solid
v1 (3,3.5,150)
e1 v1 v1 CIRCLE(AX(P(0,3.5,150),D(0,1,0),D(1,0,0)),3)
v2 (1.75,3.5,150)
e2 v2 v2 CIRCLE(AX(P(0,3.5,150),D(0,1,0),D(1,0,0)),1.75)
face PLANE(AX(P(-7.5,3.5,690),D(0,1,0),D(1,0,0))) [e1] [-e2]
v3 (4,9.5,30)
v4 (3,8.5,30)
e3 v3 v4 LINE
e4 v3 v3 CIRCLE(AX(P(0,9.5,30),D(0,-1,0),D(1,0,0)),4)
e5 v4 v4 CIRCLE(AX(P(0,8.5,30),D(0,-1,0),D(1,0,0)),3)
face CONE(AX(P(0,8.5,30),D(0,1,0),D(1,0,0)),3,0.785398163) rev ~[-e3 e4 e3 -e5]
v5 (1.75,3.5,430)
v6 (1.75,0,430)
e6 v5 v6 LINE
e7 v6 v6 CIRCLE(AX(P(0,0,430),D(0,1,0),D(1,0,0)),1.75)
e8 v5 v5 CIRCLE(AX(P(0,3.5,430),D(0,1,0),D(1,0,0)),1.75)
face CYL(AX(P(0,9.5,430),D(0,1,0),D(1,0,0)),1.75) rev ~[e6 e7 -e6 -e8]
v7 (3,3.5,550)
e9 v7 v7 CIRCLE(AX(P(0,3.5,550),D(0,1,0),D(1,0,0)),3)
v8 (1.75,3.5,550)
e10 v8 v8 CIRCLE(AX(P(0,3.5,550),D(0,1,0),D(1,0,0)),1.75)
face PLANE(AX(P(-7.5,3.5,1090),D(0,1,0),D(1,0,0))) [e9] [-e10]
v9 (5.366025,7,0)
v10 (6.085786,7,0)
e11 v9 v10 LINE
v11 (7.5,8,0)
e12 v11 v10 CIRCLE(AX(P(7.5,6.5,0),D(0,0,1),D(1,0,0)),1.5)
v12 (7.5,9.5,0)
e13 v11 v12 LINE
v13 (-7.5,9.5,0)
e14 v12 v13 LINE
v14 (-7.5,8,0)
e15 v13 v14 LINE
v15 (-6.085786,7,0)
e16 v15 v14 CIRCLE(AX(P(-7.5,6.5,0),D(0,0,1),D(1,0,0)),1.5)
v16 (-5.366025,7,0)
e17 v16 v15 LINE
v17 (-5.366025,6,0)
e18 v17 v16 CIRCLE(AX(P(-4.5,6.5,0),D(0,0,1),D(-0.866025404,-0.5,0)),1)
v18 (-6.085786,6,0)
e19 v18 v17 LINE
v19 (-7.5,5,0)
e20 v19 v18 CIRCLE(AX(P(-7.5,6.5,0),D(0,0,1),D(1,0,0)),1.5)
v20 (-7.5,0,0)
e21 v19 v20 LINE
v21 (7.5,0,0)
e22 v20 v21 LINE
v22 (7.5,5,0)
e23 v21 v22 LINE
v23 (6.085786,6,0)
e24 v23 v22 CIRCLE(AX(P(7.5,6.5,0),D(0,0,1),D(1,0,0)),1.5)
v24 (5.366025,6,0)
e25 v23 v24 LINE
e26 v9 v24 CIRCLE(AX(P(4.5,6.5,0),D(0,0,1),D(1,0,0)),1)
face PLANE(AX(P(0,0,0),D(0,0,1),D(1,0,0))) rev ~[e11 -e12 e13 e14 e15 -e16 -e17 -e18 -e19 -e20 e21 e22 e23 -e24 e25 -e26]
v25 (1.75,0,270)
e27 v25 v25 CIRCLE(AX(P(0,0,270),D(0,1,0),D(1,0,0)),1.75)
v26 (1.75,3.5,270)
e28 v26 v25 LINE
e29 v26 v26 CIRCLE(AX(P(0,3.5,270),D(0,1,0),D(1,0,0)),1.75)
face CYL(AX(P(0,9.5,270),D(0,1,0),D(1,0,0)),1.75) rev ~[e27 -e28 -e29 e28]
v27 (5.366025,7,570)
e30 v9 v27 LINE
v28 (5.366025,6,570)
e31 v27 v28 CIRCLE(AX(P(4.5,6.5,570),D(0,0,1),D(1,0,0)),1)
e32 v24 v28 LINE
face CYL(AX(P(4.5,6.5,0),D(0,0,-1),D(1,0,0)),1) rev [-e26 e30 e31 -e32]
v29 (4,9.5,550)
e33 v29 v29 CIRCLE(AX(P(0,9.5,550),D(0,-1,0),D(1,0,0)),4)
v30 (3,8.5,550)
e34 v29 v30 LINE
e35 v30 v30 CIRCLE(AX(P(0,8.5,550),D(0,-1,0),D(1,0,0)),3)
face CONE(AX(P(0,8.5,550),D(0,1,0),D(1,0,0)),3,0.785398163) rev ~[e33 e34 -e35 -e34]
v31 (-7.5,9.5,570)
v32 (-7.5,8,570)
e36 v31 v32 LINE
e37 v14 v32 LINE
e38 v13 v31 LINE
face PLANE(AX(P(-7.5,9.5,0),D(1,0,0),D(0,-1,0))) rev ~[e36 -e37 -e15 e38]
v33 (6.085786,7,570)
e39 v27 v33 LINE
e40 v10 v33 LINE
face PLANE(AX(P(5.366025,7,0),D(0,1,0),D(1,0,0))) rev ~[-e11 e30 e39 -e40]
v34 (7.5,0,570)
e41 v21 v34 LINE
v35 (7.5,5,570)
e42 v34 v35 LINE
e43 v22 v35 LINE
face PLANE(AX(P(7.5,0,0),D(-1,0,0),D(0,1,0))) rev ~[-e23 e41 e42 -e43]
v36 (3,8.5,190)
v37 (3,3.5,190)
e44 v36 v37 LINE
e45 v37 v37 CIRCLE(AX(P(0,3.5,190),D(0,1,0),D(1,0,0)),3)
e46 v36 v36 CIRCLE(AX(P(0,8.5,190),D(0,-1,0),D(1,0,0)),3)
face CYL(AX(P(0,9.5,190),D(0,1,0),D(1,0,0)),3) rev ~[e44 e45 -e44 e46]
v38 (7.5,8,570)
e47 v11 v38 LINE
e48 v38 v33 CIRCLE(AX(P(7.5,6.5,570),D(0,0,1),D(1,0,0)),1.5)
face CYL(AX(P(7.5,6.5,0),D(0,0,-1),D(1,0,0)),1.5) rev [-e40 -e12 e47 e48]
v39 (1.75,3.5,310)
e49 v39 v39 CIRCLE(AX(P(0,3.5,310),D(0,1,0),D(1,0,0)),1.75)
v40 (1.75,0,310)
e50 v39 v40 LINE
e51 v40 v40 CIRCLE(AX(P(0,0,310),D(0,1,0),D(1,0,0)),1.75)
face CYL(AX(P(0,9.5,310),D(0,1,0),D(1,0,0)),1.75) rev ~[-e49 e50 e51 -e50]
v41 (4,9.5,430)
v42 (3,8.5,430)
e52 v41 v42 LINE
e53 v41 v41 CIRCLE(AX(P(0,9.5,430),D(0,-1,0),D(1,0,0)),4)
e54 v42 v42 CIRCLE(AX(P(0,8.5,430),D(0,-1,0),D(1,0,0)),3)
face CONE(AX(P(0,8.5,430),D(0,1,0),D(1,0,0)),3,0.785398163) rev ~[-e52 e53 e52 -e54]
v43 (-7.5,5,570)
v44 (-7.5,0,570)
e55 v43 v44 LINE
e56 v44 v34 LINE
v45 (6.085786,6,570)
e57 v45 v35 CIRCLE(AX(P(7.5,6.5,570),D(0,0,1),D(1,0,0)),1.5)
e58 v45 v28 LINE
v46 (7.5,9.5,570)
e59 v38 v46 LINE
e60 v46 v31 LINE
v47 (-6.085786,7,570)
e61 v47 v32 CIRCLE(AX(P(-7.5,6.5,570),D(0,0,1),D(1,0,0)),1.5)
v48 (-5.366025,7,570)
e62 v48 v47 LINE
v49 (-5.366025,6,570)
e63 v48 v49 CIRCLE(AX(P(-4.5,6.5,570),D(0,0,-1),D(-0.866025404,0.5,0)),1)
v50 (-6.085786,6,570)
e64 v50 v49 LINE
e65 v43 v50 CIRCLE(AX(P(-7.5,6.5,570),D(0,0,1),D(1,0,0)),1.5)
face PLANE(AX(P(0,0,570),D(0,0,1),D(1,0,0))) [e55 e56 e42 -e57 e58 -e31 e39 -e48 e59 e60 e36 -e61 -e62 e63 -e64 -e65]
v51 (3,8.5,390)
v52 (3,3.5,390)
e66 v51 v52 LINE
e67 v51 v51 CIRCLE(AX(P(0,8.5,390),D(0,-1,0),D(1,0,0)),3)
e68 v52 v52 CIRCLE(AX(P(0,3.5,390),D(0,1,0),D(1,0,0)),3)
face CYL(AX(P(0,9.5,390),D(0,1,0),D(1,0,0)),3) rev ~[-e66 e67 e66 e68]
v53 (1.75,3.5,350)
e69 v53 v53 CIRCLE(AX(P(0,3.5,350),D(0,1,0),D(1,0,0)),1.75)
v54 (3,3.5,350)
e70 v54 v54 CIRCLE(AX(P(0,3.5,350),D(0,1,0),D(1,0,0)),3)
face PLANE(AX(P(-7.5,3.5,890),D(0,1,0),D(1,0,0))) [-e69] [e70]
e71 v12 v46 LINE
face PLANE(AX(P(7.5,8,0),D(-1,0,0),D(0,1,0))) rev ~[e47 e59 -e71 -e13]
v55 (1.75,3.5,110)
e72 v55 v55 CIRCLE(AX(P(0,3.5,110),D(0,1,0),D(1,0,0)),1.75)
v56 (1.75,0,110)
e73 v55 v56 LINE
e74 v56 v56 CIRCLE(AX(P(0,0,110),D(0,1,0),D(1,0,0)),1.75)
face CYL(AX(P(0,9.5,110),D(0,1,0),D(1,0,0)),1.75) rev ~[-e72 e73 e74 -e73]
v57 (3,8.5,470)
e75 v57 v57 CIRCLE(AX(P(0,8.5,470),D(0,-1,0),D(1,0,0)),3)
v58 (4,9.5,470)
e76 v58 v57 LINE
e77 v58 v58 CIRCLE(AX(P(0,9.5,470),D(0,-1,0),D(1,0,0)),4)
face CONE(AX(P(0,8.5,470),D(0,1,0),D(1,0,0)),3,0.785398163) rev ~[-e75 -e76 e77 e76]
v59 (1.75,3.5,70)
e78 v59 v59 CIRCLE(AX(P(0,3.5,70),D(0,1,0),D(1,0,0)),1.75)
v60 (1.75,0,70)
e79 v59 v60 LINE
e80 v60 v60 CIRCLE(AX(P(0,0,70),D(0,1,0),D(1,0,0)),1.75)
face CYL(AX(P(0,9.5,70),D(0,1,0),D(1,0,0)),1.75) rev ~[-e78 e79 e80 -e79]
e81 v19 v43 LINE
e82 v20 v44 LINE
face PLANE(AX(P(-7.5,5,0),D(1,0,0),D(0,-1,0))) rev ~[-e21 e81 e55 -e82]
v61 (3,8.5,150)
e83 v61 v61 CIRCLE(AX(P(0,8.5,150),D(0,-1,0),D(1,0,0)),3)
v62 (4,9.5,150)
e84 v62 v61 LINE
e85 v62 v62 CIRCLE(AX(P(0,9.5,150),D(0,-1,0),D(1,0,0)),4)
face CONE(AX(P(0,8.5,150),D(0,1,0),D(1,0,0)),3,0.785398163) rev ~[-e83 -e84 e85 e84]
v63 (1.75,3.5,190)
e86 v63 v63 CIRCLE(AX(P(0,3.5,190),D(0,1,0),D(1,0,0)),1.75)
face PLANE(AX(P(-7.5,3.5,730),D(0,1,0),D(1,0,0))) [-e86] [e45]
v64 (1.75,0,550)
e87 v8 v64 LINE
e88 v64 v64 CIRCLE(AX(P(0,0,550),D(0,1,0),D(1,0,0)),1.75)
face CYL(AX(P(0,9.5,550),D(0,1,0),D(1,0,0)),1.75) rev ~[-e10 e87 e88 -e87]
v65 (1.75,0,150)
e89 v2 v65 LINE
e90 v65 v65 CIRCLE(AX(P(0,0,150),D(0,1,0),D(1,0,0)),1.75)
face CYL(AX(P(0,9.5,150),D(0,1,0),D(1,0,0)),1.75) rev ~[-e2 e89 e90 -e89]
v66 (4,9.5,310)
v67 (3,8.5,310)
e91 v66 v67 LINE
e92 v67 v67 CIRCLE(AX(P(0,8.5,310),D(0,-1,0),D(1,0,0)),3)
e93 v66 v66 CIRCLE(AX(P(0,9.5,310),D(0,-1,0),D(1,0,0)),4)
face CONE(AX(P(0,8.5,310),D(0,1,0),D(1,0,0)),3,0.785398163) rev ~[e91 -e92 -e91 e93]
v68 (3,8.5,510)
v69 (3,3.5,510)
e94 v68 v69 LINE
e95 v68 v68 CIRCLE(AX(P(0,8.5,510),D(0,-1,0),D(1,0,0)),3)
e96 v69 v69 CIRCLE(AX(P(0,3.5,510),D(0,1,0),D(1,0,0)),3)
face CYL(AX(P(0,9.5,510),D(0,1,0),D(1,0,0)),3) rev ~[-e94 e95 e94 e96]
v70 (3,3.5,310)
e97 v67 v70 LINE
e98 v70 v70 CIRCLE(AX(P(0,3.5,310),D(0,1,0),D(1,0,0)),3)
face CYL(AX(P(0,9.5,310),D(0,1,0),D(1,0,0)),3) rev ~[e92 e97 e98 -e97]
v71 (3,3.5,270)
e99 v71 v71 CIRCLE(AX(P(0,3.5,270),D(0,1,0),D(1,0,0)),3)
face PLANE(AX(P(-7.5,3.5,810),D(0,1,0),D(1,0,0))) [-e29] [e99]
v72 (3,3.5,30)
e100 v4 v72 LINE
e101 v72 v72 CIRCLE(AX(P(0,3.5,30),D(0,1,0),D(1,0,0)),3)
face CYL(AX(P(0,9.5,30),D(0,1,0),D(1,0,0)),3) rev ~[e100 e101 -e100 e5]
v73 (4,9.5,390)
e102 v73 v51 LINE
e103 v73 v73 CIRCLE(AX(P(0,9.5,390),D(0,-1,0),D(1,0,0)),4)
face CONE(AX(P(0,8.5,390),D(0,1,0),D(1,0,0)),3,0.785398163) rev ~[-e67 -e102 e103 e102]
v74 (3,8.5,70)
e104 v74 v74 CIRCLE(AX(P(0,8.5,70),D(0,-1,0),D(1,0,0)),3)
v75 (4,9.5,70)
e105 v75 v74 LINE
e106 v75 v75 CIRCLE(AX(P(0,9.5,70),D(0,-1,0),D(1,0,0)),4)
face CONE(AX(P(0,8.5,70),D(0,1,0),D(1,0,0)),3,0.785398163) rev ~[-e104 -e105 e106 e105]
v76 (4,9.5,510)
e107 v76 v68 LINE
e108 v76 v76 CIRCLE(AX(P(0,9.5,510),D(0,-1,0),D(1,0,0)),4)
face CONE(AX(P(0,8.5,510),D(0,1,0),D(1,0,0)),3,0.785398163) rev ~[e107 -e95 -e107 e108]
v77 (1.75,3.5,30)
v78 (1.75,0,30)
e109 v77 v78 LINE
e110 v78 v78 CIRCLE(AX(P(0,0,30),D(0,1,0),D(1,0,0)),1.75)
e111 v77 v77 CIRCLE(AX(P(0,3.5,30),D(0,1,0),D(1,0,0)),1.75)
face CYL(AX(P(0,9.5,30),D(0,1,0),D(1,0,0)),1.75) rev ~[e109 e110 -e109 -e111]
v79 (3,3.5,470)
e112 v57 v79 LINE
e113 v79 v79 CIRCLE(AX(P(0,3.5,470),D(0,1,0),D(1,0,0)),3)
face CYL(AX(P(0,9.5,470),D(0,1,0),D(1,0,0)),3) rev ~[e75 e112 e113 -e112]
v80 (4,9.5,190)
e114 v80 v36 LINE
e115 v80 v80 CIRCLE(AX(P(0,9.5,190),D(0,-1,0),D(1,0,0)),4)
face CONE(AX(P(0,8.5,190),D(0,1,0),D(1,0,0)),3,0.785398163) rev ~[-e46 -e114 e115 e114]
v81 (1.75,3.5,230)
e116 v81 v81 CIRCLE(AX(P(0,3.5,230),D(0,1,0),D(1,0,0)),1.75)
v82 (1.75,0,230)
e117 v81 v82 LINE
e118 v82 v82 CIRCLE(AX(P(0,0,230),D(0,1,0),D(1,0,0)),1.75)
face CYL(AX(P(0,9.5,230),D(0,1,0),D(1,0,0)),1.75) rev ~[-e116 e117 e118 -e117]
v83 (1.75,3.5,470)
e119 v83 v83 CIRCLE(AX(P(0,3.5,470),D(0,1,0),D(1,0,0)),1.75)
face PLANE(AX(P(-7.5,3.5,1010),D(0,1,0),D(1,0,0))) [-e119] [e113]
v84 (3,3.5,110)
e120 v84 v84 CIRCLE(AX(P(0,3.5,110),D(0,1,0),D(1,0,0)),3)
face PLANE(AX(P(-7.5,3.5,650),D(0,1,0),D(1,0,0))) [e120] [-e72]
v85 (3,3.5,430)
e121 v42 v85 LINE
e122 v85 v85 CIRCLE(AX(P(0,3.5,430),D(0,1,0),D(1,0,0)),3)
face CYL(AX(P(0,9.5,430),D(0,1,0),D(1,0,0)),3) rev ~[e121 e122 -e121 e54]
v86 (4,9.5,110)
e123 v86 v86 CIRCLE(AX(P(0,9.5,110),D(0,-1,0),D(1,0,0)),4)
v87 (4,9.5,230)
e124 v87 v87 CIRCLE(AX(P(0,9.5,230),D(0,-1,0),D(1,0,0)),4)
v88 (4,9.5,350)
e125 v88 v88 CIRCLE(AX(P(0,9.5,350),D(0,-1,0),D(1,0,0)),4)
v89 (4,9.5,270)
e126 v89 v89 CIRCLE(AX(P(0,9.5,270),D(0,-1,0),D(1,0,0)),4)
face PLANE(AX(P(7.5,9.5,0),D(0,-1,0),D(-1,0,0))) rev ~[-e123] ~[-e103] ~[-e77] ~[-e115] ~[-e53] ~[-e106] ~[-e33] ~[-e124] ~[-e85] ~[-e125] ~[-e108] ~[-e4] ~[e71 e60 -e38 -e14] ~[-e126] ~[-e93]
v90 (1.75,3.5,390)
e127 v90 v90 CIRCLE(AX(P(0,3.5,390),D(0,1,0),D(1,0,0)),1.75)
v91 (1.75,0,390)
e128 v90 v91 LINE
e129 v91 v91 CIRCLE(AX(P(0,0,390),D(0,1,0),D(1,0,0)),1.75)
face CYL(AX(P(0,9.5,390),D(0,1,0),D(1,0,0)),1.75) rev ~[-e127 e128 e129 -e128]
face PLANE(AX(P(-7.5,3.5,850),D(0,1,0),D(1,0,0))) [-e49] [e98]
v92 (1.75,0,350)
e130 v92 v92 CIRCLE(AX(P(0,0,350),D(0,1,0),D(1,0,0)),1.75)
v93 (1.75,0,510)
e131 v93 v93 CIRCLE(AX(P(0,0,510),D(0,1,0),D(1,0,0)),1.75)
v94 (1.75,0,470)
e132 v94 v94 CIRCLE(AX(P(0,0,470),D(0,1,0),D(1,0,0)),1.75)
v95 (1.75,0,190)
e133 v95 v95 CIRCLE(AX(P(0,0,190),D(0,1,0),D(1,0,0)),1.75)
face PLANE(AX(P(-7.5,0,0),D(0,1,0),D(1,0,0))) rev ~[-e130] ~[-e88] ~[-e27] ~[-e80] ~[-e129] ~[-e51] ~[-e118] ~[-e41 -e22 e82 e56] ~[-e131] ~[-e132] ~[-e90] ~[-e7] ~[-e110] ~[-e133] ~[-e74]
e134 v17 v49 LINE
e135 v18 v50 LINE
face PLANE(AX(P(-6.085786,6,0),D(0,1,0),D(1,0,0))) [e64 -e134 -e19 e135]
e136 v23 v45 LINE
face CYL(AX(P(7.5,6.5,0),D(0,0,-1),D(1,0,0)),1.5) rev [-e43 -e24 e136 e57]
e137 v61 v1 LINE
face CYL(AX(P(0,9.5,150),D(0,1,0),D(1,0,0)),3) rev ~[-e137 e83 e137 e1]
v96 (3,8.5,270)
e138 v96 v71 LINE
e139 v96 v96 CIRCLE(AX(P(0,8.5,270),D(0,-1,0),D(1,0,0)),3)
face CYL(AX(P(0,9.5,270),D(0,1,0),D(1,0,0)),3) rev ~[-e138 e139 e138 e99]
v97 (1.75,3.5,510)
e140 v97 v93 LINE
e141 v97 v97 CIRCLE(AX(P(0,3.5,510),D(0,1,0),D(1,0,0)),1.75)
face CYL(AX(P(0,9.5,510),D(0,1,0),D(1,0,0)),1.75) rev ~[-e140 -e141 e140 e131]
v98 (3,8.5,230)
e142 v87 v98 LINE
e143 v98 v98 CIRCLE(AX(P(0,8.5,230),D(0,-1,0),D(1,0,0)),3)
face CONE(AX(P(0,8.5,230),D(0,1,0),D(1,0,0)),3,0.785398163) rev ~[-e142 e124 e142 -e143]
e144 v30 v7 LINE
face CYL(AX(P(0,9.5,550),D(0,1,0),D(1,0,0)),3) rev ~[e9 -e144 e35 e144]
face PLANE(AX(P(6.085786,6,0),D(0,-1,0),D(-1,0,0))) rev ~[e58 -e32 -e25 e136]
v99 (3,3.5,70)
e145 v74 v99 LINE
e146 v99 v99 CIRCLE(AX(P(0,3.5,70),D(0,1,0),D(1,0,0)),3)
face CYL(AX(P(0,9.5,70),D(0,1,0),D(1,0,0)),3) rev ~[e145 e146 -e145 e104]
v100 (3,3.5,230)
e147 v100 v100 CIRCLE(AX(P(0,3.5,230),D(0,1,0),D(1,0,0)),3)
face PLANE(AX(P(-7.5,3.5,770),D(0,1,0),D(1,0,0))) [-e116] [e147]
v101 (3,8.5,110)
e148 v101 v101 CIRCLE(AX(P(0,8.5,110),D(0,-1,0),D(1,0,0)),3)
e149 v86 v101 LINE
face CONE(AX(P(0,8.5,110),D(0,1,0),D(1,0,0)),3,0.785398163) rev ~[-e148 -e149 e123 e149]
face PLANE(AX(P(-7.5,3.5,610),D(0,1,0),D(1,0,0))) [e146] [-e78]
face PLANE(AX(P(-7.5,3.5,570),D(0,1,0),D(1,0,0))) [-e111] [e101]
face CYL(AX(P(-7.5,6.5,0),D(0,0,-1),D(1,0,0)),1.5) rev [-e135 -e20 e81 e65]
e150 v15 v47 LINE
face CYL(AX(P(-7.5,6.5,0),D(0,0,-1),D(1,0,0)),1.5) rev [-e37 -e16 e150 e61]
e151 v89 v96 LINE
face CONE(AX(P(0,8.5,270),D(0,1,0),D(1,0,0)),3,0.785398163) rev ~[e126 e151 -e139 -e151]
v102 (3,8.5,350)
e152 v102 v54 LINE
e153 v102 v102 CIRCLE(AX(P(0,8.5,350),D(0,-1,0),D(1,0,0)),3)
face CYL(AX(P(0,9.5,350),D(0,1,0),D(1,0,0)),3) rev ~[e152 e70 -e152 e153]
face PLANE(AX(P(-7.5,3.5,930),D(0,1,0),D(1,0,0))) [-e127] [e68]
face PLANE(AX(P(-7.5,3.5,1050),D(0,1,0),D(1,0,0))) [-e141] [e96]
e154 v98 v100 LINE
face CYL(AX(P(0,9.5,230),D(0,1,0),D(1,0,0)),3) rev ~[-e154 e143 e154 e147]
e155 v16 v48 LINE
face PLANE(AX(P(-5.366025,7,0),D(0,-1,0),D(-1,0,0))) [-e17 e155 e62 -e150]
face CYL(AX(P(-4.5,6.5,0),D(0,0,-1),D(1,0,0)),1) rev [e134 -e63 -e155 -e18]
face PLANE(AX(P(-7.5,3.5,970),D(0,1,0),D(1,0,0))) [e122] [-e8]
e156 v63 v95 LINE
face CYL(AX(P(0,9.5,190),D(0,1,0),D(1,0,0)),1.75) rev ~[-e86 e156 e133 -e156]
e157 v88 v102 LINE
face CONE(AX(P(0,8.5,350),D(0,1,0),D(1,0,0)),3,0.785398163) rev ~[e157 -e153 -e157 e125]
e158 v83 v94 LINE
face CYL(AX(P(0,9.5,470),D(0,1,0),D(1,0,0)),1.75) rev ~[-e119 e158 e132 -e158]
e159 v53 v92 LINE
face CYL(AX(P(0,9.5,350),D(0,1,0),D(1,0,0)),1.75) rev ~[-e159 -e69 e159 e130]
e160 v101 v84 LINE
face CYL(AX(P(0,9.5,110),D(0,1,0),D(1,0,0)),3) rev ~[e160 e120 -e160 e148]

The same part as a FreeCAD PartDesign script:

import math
import FreeCAD as App
import Part
import Sketcher


def edges_at(feature, points):
    """Names of the edges that pass closest to the given points."""
    edges = feature.Shape.Edges
    near = lambda p: min(range(len(edges)), key=lambda i: edges[i].distToShape(Part.Vertex(*p))[0])
    return sorted({f"Edge{near(p) + 1}" for p in points})

doc = App.newDocument("Part")
body = doc.addObject("PartDesign::Body", "Body")

# Sketch on XY plane
sketch1 = doc.addObject("Sketcher::SketchObject", "Sketch")
body.addObject(sketch1)
sketch1.AttachmentSupport = (doc.XY_Plane, [""])
sketch1.MapMode = "FlatFace"
sketch1.addGeometry([
    Part.LineSegment(App.Vector(-7.5, 5, 0), App.Vector(-7.5, 0, 0)),  # 0
    Part.LineSegment(App.Vector(-7.5, 0, 0), App.Vector(7.5, 0, 0)),  # 1
    Part.LineSegment(App.Vector(7.5, 0, 0), App.Vector(7.5, 5, 0)),  # 2
    Part.ArcOfCircle(Part.Circle(App.Vector(7.5, 6.5, 0), App.Vector(0, 0, 1), 1.5), math.radians(-161), math.radians(-90)),  # 3
    Part.LineSegment(App.Vector(6.1, 6, 0), App.Vector(5.4, 6, 0)),  # 4
    Part.ArcOfCircle(Part.Circle(App.Vector(4.5, 6.5, 0), App.Vector(0, 0, 1), 1), math.radians(30), math.radians(330)),  # 5
    Part.LineSegment(App.Vector(5.4, 7, 0), App.Vector(6.1, 7, 0)),  # 6
    Part.ArcOfCircle(Part.Circle(App.Vector(7.5, 6.5, 0), App.Vector(0, 0, 1), 1.5), math.radians(90), math.radians(161)),  # 7
    Part.LineSegment(App.Vector(7.5, 8, 0), App.Vector(7.5, 9.5, 0)),  # 8
    Part.LineSegment(App.Vector(7.5, 9.5, 0), App.Vector(-7.5, 9.5, 0)),  # 9
    Part.LineSegment(App.Vector(-7.5, 9.5, 0), App.Vector(-7.5, 8, 0)),  # 10
    Part.ArcOfCircle(Part.Circle(App.Vector(-7.5, 6.5, 0), App.Vector(0, 0, 1), 1.5), math.radians(19), math.radians(90)),  # 11
    Part.LineSegment(App.Vector(-6.1, 7, 0), App.Vector(-5.4, 7, 0)),  # 12
    Part.ArcOfCircle(Part.Circle(App.Vector(-4.5, 6.5, 0), App.Vector(0, 0, 1), 1), math.radians(-150), math.radians(150)),  # 13
    Part.LineSegment(App.Vector(-5.4, 6, 0), App.Vector(-6.1, 6, 0)),  # 14
    Part.ArcOfCircle(Part.Circle(App.Vector(-7.5, 6.5, 0), App.Vector(0, 0, 1), 1.5), math.radians(-90), math.radians(-19)),  # 15
], False)
sketch1.addConstraint([
    Sketcher.Constraint("Coincident", 0, 2, 1, 1),
    Sketcher.Constraint("Coincident", 1, 2, 2, 1),
    Sketcher.Constraint("Coincident", 2, 2, 3, 2),
    Sketcher.Constraint("Coincident", 3, 1, 4, 1),
    Sketcher.Constraint("Coincident", 4, 2, 5, 2),
    Sketcher.Constraint("Coincident", 5, 1, 6, 1),
    Sketcher.Constraint("Coincident", 6, 2, 7, 2),
    Sketcher.Constraint("Coincident", 7, 1, 8, 1),
    Sketcher.Constraint("Coincident", 8, 2, 9, 1),
    Sketcher.Constraint("Coincident", 9, 2, 10, 1),
    Sketcher.Constraint("Coincident", 10, 2, 11, 2),
    Sketcher.Constraint("Coincident", 11, 1, 12, 1),
    Sketcher.Constraint("Coincident", 12, 2, 13, 2),
    Sketcher.Constraint("Coincident", 13, 1, 14, 1),
    Sketcher.Constraint("Coincident", 14, 2, 15, 2),
    Sketcher.Constraint("Coincident", 15, 1, 0, 1),
    Sketcher.Constraint("Vertical", 0),
    Sketcher.Constraint("Horizontal", 1),
    Sketcher.Constraint("Vertical", 2),
    Sketcher.Constraint("Horizontal", 4),
    Sketcher.Constraint("Horizontal", 6),
    Sketcher.Constraint("Vertical", 8),
    Sketcher.Constraint("Horizontal", 9),
    Sketcher.Constraint("Vertical", 10),
    Sketcher.Constraint("Horizontal", 12),
    Sketcher.Constraint("Horizontal", 14),
    Sketcher.Constraint("Coincident", 7, 3, 3, 3),
    Sketcher.Constraint("Coincident", 15, 3, 11, 3),
    Sketcher.Constraint("Equal", 3, 7),
    Sketcher.Constraint("Equal", 7, 11),
    Sketcher.Constraint("Equal", 5, 13),
    Sketcher.Constraint("Equal", 11, 15),
    Sketcher.Constraint("Symmetric", 0, 2, 1, 2, -1, 1),
    Sketcher.Constraint("Symmetric", 3, 3, 11, 3, -2),
    Sketcher.Constraint("Symmetric", 5, 3, 13, 3, -2),
    Sketcher.Constraint("Horizontal", 3, 3, 5, 3),
    Sketcher.Constraint("Horizontal", 6, 2, 11, 1),
    Sketcher.Constraint("Horizontal", 4, 2, 13, 1),
    Sketcher.Constraint("Vertical", 15, 3, 0, 2),
    Sketcher.Constraint("Vertical", 4, 2, 5, 1),
    Sketcher.Constraint("Vertical", 2, 2, 7, 1),
    Sketcher.Constraint("Vertical", 0, 2, 9, 2),
    Sketcher.Constraint("Radius", 5, 1.0),
    Sketcher.Constraint("Radius", 3, 1.5),
    Sketcher.Constraint("DistanceX", 1, 1, 1, 2, 15.0),
    Sketcher.Constraint("DistanceX", 5, 3, 3, 3, 3.0),
    Sketcher.Constraint("DistanceY", 2, 2, 3, 1, 1.0),
    Sketcher.Constraint("DistanceY", 3, 3, 8, 2, 3.0),
    Sketcher.Constraint("DistanceY", -1, 1, 8, 2, 9.5),
])
pad1 = doc.addObject("PartDesign::Pad", "Pad")
body.addObject(pad1)
pad1.Profile = sketch1
pad1.Length = 570

# Sketch on XZ plane
sketch2 = doc.addObject("Sketcher::SketchObject", "Sketch001")
body.addObject(sketch2)
sketch2.AttachmentSupport = (doc.XZ_Plane, [""])
sketch2.MapMode = "FlatFace"
sketch2.AttachmentOffset = App.Placement(App.Vector(0, 0, -9.5), App.Rotation())
sketch2.addGeometry(Part.Circle(App.Vector(0, 30, 0), App.Vector(0, 0, 1), 3), False)
sketch2.addConstraint([
    Sketcher.Constraint("PointOnObject", 0, 3, -2),
    Sketcher.Constraint("Diameter", 0, 6.0),
    Sketcher.Constraint("DistanceY", -1, 1, 0, 3, 30.0),
])
pocket1 = doc.addObject("PartDesign::Pocket", "Pocket")
body.addObject(pocket1)
pocket1.Profile = sketch2
pocket1.Length = 6
pocket1.Reversed = True

# Sketch on XZ plane
sketch3 = doc.addObject("Sketcher::SketchObject", "Sketch002")
body.addObject(sketch3)
sketch3.AttachmentSupport = (doc.XZ_Plane, [""])
sketch3.MapMode = "FlatFace"
sketch3.AttachmentOffset = App.Placement(App.Vector(0, 0, -9.5), App.Rotation())
sketch3.addGeometry(Part.Circle(App.Vector(0, 30, 0), App.Vector(0, 0, 1), 1.8), False)
sketch3.addConstraint([
    Sketcher.Constraint("PointOnObject", 0, 3, -2),
    Sketcher.Constraint("Diameter", 0, 3.5),
    Sketcher.Constraint("DistanceY", -1, 1, 0, 3, 30.0),
])
pocket2 = doc.addObject("PartDesign::Pocket", "Pocket001")
body.addObject(pocket2)
pocket2.Profile = sketch3
pocket2.Length = 15
pocket2.Reversed = True
doc.recompute()

chamfer = doc.addObject("PartDesign::Chamfer", "Chamfer")
body.addObject(chamfer)
chamfer.Base = (pocket2, edges_at(pocket2, [(-3, 9.5, 30)]))
chamfer.Size = 1
doc.recompute()

linearpattern = doc.addObject("PartDesign::LinearPattern", "LinearPattern")
body.addObject(linearpattern)
linearpattern.Originals = [pocket1, pocket2, chamfer]
linearpattern.Direction = (doc.Z_Axis, [""])
linearpattern.Mode = "offset"
linearpattern.Offset = 40
linearpattern.Occurrences = 14
body.Tip = linearpattern

doc.recompute()
